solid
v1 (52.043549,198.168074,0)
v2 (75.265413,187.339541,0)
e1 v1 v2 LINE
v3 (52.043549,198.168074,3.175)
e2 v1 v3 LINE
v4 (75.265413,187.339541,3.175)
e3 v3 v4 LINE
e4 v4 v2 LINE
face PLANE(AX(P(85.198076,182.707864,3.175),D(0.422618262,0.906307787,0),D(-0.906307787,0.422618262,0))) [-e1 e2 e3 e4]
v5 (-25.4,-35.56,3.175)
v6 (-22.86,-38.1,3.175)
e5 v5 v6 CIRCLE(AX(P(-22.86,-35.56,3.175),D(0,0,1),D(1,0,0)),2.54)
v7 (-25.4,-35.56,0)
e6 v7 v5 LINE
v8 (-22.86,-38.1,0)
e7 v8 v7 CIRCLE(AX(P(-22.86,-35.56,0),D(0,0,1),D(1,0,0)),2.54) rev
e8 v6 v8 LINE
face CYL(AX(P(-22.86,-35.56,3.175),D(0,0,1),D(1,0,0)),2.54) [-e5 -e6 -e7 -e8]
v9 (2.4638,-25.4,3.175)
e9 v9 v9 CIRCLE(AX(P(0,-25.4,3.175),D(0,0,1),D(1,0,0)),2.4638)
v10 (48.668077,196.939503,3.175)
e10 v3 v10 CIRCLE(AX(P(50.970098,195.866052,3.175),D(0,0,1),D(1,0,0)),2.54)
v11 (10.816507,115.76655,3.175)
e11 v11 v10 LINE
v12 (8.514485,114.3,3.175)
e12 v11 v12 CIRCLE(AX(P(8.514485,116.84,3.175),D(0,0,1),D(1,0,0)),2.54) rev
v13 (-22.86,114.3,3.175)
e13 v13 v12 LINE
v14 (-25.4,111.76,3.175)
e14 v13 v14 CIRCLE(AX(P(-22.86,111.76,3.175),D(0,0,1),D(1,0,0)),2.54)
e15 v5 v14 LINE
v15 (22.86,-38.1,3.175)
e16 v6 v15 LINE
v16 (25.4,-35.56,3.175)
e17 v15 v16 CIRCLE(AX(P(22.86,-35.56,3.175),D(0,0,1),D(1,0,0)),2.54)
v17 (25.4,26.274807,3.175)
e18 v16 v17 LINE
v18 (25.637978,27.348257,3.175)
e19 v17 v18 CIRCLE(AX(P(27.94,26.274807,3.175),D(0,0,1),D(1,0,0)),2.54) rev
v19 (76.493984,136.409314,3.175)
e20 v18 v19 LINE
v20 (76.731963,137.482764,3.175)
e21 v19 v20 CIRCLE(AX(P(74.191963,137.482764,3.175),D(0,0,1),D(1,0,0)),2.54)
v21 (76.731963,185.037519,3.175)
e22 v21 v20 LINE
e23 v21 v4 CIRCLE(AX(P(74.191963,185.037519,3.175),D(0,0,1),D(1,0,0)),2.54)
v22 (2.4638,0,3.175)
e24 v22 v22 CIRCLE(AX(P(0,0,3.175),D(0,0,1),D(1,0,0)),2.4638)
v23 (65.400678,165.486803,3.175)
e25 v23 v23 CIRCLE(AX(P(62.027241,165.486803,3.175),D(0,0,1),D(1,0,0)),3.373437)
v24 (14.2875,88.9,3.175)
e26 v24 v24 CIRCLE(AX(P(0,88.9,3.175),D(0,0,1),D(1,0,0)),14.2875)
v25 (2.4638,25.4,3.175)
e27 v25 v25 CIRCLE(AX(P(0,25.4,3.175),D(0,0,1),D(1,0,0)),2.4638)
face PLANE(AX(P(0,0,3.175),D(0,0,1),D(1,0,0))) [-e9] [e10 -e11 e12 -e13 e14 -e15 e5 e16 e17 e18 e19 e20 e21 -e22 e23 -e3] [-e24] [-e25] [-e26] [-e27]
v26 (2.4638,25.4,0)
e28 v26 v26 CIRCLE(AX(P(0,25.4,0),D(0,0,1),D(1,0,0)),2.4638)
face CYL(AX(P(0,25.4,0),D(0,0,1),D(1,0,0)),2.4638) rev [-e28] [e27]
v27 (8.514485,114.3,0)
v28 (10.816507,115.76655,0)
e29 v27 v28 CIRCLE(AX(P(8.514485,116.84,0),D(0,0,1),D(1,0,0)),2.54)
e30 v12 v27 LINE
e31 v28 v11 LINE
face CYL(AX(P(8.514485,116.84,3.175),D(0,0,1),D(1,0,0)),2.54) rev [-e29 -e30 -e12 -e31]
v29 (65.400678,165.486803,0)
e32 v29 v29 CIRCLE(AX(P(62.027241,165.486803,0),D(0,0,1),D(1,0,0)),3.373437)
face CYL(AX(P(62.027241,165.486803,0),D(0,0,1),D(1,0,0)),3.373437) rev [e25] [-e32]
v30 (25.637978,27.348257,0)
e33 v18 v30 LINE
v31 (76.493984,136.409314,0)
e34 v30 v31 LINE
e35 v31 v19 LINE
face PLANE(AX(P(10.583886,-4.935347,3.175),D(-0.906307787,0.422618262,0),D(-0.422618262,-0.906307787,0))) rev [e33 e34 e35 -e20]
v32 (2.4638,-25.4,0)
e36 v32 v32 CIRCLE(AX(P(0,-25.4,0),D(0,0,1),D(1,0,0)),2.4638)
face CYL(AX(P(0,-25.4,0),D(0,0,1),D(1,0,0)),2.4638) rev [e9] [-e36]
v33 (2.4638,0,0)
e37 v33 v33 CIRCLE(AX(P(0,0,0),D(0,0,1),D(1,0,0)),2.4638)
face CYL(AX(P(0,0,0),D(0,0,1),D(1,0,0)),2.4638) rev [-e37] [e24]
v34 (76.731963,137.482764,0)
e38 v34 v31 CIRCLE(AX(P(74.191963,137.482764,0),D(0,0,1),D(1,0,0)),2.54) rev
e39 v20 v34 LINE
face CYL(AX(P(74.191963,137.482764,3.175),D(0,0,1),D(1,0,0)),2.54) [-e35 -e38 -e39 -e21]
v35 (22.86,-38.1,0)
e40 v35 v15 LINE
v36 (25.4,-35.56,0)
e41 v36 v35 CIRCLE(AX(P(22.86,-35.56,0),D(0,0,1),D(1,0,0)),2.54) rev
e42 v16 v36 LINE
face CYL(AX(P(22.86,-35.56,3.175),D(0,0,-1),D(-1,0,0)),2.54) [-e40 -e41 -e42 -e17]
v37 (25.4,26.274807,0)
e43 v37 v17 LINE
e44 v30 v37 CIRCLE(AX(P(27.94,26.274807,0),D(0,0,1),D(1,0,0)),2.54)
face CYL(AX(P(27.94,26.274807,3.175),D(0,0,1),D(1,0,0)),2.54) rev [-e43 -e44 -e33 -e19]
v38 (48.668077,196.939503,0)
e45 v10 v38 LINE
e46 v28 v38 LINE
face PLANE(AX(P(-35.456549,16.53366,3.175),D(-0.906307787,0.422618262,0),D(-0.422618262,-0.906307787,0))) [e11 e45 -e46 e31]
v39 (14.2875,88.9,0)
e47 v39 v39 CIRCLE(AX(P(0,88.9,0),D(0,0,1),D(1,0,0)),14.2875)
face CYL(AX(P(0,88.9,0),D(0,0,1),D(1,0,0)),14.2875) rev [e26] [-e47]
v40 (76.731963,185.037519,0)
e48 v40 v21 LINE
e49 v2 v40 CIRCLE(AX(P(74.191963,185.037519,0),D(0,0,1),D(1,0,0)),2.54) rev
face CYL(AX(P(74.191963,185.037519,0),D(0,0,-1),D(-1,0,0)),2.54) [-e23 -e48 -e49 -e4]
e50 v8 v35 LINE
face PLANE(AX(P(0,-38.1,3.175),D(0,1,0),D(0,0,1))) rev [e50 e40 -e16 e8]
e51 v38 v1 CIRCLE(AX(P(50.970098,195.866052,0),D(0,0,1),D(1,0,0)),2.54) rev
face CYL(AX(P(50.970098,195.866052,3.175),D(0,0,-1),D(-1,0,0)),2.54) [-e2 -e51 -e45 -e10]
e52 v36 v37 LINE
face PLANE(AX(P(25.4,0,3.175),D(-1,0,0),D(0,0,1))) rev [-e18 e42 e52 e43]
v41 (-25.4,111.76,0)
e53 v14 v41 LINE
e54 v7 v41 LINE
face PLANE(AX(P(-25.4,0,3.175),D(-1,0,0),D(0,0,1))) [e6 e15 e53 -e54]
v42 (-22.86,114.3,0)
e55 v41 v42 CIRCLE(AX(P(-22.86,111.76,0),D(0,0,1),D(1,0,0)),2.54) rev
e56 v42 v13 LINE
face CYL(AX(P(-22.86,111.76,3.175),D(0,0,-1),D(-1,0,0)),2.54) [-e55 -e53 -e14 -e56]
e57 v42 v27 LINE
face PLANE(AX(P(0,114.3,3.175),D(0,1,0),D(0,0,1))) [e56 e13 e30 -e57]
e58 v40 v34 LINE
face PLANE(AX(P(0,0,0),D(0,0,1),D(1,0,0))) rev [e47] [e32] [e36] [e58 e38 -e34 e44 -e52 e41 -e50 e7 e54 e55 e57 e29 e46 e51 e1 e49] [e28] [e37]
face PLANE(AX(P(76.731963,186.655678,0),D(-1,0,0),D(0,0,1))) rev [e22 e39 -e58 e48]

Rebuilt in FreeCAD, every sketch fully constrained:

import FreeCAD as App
import Part
import Sketcher

V = App.Vector
Q = App.Units.Quantity


def edges_at(feature, points):
    """Names of the edges that pass closest to the given points."""
    edges = feature.Shape.Edges
    near = lambda p: min(range(len(edges)), key=lambda i: edges[i].distToShape(Part.Vertex(*p))[0])
    return sorted({f"Edge{near(p) + 1}" for p in points})

doc = App.newDocument("Part")
body = doc.addObject("PartDesign::Body", "Body")

sketch1 = body.newObject("Sketcher::SketchObject", "Sketch")
sketch1.AttachmentSupport = (doc.getObject("XY_Plane"), [""])
sketch1.MapMode = "FlatFace"
sketch1.addGeometry([
    Part.LineSegment(V(49.741527, 199.241525, 0), V(10.132644, 114.3, 0)),
    Part.LineSegment(V(10.132644, 114.3, 0), V(-25.4, 114.3, 0)),
    Part.LineSegment(V(-25.4, 114.3, 0), V(-25.4, -38.1, 0)),
    Part.LineSegment(V(-25.4, -38.1, 0), V(25.4, -38.1, 0)),
    Part.LineSegment(V(25.4, -38.1, 0), V(25.4, 26.837911, 0)),
    Part.LineSegment(V(25.4, 26.837911, 0), V(95.781963, 177.772517, 0)),
    Part.LineSegment(V(95.781963, 177.772517, 0), V(49.741527, 199.241525, 0)),
], False)
sketch1.addConstraint([
    Sketcher.Constraint("Coincident", 0, 2, 1, 1),
    Sketcher.Constraint("Coincident", 1, 2, 2, 1),
    Sketcher.Constraint("Coincident", 2, 2, 3, 1),
    Sketcher.Constraint("Coincident", 3, 2, 4, 1),
    Sketcher.Constraint("Coincident", 4, 2, 5, 1),
    Sketcher.Constraint("Coincident", 5, 2, 6, 1),
    Sketcher.Constraint("Coincident", 6, 2, 0, 1),
    Sketcher.Constraint("Horizontal", 1),
    Sketcher.Constraint("Vertical", 2),
    Sketcher.Constraint("Horizontal", 3),
    Sketcher.Constraint("Vertical", 4),
    Sketcher.Constraint("Parallel", 0, 5),
    Sketcher.Constraint("Perpendicular", 5, 6),
    Sketcher.Constraint("DistanceX", 3, 1, 3, 2, Q("2 in")),
    Sketcher.Constraint("DistanceY", 2, 2, 2, 1, Q("6 in")),
    Sketcher.Constraint("Distance", 6, Q("2 in")),
    Sketcher.Constraint("DistanceX", 1, 2, -1, 1, Q("1 in")),
    Sketcher.Constraint("Angle", 0, Q("-115 deg")),
    Sketcher.Constraint("DistanceY", -1, 1, 0, 2, Q("4.5 in")),
    Sketcher.Constraint("DistanceY", 4, 1, 4, 2, 64.937911),
    Sketcher.Constraint("Distance", 5, 166.537911),
])
pad1 = body.newObject("PartDesign::Pad", "Pad")
pad1.Profile = sketch1
pad1.Length = Q("0.125 in")

sketch2 = body.newObject("Sketcher::SketchObject", "Sketch001")
sketch2.AttachmentSupport = (doc.getObject("XY_Plane"), [""])
sketch2.MapMode = "FlatFace"
sketch2.AttachmentOffset = App.Placement(V(0, 0, 0.125 * 25.4), App.Rotation())
sketch2.addGeometry(Part.Circle(V(62.027241, 165.486803, 0), V(0, 0, 1), 3.373438), False)
sketch2.addConstraint([
    Sketcher.Constraint("Diameter", 0, Q("0.265625 in")),
    Sketcher.Constraint("DistanceX", -1, 1, 0, 3, 62.027241),
    Sketcher.Constraint("DistanceY", -1, 1, 0, 3, 165.486803),
])
pocket1 = body.newObject("PartDesign::Pocket", "Pocket")
pocket1.Profile = sketch2
pocket1.Length = Q("0.125 in")

sketch3 = body.newObject("Sketcher::SketchObject", "Sketch002")
sketch3.AttachmentSupport = (doc.getObject("XY_Plane"), [""])
sketch3.MapMode = "FlatFace"
sketch3.AttachmentOffset = App.Placement(V(0, 0, 0.125 * 25.4), App.Rotation())
sketch3.addGeometry([
    Part.Circle(V(0, -25.4, 0), V(0, 0, 1), 2.4638),
    Part.Circle(V(0, 0, 0), V(0, 0, 1), 2.4638),
    Part.Circle(V(0, 25.4, 0), V(0, 0, 1), 2.4638),
], False)
sketch3.addConstraint([
    Sketcher.Constraint("Coincident", 1, 3, -1, 1),
    Sketcher.Constraint("Equal", 0, 1),
    Sketcher.Constraint("Equal", 1, 2),
    Sketcher.Constraint("Symmetric", 0, 3, 2, 3, -1, 1),
    Sketcher.Constraint("PointOnObject", 0, 3, -2),
    Sketcher.Constraint("Diameter", 0, Q("0.194 in")),
    Sketcher.Constraint("DistanceY", 0, 3, -1, 1, Q("1 in")),
])
pocket2 = body.newObject("PartDesign::Pocket", "Pocket001")
pocket2.Profile = sketch3
pocket2.Length = Q("0.125 in")

sketch4 = body.newObject("Sketcher::SketchObject", "Sketch003")
sketch4.AttachmentSupport = (doc.getObject("XY_Plane"), [""])
sketch4.MapMode = "FlatFace"
sketch4.AttachmentOffset = App.Placement(V(0, 0, 0.125 * 25.4), App.Rotation())
sketch4.addGeometry(Part.Circle(V(0, 88.9, 0), V(0, 0, 1), 14.2875), False)
sketch4.addConstraint([
    Sketcher.Constraint("PointOnObject", 0, 3, -2),
    Sketcher.Constraint("Diameter", 0, Q("1.125 in")),
    Sketcher.Constraint("DistanceY", -1, 1, 0, 3, Q("3.5 in")),
])
pocket3 = body.newObject("PartDesign::Pocket", "Pocket002")
pocket3.Profile = sketch4
pocket3.Length = Q("0.125 in")

sketch5 = body.newObject("Sketcher::SketchObject", "Sketch004")
sketch5.AttachmentSupport = (doc.getObject("XY_Plane"), [""])
sketch5.MapMode = "FlatFace"
sketch5.AttachmentOffset = App.Placement(V(0, 0, 0.125 * 25.4), App.Rotation())
sketch5.addGeometry([
    Part.LineSegment(V(76.731963, 186.655678, 0), V(76.731963, 136.91966, 0)),
    Part.LineSegment(V(76.731963, 136.91966, 0), V(95.781963, 177.772517, 0)),
    Part.LineSegment(V(95.781963, 177.772517, 0), V(76.731963, 186.655678, 0)),
], False)
sketch5.addConstraint([
    Sketcher.Constraint("Coincident", 0, 2, 1, 1),
    Sketcher.Constraint("Coincident", 1, 2, 2, 1),
    Sketcher.Constraint("Coincident", 2, 2, 0, 1),
    Sketcher.Constraint("Vertical", 0),
    Sketcher.Constraint("Perpendicular", 1, 2),
    Sketcher.Constraint("Angle", 1, Q("65 deg")),
    Sketcher.Constraint("DistanceX", 0, 2, 1, 2, Q("0.75 in")),
    Sketcher.Constraint("DistanceY", -1, 1, 0, 2, 136.91966),
    Sketcher.Constraint("DistanceX", -1, 1, 0, 2, 76.731963),
])
pocket4 = body.newObject("PartDesign::Pocket", "Pocket003")
pocket4.Profile = sketch5
pocket4.Type = "ThroughAll"
doc.recompute()

fillet = body.newObject("PartDesign::Fillet", "Fillet")
fillet.Base = (pocket4, edges_at(pocket4, [
    (10.133, 114.3, 1.587),
    (49.742, 199.242, 1.587),
    (25.4, 26.838, 1.587),
    (25.4, -38.1, 1.587),
    (-25.4, -38.1, 1.587),
    (-25.4, 114.3, 1.587),
    (76.732, 186.656, 1.587),
    (76.732, 136.92, 1.587),
]))
fillet.Radius = Q("0.1 in")

doc.recompute()
